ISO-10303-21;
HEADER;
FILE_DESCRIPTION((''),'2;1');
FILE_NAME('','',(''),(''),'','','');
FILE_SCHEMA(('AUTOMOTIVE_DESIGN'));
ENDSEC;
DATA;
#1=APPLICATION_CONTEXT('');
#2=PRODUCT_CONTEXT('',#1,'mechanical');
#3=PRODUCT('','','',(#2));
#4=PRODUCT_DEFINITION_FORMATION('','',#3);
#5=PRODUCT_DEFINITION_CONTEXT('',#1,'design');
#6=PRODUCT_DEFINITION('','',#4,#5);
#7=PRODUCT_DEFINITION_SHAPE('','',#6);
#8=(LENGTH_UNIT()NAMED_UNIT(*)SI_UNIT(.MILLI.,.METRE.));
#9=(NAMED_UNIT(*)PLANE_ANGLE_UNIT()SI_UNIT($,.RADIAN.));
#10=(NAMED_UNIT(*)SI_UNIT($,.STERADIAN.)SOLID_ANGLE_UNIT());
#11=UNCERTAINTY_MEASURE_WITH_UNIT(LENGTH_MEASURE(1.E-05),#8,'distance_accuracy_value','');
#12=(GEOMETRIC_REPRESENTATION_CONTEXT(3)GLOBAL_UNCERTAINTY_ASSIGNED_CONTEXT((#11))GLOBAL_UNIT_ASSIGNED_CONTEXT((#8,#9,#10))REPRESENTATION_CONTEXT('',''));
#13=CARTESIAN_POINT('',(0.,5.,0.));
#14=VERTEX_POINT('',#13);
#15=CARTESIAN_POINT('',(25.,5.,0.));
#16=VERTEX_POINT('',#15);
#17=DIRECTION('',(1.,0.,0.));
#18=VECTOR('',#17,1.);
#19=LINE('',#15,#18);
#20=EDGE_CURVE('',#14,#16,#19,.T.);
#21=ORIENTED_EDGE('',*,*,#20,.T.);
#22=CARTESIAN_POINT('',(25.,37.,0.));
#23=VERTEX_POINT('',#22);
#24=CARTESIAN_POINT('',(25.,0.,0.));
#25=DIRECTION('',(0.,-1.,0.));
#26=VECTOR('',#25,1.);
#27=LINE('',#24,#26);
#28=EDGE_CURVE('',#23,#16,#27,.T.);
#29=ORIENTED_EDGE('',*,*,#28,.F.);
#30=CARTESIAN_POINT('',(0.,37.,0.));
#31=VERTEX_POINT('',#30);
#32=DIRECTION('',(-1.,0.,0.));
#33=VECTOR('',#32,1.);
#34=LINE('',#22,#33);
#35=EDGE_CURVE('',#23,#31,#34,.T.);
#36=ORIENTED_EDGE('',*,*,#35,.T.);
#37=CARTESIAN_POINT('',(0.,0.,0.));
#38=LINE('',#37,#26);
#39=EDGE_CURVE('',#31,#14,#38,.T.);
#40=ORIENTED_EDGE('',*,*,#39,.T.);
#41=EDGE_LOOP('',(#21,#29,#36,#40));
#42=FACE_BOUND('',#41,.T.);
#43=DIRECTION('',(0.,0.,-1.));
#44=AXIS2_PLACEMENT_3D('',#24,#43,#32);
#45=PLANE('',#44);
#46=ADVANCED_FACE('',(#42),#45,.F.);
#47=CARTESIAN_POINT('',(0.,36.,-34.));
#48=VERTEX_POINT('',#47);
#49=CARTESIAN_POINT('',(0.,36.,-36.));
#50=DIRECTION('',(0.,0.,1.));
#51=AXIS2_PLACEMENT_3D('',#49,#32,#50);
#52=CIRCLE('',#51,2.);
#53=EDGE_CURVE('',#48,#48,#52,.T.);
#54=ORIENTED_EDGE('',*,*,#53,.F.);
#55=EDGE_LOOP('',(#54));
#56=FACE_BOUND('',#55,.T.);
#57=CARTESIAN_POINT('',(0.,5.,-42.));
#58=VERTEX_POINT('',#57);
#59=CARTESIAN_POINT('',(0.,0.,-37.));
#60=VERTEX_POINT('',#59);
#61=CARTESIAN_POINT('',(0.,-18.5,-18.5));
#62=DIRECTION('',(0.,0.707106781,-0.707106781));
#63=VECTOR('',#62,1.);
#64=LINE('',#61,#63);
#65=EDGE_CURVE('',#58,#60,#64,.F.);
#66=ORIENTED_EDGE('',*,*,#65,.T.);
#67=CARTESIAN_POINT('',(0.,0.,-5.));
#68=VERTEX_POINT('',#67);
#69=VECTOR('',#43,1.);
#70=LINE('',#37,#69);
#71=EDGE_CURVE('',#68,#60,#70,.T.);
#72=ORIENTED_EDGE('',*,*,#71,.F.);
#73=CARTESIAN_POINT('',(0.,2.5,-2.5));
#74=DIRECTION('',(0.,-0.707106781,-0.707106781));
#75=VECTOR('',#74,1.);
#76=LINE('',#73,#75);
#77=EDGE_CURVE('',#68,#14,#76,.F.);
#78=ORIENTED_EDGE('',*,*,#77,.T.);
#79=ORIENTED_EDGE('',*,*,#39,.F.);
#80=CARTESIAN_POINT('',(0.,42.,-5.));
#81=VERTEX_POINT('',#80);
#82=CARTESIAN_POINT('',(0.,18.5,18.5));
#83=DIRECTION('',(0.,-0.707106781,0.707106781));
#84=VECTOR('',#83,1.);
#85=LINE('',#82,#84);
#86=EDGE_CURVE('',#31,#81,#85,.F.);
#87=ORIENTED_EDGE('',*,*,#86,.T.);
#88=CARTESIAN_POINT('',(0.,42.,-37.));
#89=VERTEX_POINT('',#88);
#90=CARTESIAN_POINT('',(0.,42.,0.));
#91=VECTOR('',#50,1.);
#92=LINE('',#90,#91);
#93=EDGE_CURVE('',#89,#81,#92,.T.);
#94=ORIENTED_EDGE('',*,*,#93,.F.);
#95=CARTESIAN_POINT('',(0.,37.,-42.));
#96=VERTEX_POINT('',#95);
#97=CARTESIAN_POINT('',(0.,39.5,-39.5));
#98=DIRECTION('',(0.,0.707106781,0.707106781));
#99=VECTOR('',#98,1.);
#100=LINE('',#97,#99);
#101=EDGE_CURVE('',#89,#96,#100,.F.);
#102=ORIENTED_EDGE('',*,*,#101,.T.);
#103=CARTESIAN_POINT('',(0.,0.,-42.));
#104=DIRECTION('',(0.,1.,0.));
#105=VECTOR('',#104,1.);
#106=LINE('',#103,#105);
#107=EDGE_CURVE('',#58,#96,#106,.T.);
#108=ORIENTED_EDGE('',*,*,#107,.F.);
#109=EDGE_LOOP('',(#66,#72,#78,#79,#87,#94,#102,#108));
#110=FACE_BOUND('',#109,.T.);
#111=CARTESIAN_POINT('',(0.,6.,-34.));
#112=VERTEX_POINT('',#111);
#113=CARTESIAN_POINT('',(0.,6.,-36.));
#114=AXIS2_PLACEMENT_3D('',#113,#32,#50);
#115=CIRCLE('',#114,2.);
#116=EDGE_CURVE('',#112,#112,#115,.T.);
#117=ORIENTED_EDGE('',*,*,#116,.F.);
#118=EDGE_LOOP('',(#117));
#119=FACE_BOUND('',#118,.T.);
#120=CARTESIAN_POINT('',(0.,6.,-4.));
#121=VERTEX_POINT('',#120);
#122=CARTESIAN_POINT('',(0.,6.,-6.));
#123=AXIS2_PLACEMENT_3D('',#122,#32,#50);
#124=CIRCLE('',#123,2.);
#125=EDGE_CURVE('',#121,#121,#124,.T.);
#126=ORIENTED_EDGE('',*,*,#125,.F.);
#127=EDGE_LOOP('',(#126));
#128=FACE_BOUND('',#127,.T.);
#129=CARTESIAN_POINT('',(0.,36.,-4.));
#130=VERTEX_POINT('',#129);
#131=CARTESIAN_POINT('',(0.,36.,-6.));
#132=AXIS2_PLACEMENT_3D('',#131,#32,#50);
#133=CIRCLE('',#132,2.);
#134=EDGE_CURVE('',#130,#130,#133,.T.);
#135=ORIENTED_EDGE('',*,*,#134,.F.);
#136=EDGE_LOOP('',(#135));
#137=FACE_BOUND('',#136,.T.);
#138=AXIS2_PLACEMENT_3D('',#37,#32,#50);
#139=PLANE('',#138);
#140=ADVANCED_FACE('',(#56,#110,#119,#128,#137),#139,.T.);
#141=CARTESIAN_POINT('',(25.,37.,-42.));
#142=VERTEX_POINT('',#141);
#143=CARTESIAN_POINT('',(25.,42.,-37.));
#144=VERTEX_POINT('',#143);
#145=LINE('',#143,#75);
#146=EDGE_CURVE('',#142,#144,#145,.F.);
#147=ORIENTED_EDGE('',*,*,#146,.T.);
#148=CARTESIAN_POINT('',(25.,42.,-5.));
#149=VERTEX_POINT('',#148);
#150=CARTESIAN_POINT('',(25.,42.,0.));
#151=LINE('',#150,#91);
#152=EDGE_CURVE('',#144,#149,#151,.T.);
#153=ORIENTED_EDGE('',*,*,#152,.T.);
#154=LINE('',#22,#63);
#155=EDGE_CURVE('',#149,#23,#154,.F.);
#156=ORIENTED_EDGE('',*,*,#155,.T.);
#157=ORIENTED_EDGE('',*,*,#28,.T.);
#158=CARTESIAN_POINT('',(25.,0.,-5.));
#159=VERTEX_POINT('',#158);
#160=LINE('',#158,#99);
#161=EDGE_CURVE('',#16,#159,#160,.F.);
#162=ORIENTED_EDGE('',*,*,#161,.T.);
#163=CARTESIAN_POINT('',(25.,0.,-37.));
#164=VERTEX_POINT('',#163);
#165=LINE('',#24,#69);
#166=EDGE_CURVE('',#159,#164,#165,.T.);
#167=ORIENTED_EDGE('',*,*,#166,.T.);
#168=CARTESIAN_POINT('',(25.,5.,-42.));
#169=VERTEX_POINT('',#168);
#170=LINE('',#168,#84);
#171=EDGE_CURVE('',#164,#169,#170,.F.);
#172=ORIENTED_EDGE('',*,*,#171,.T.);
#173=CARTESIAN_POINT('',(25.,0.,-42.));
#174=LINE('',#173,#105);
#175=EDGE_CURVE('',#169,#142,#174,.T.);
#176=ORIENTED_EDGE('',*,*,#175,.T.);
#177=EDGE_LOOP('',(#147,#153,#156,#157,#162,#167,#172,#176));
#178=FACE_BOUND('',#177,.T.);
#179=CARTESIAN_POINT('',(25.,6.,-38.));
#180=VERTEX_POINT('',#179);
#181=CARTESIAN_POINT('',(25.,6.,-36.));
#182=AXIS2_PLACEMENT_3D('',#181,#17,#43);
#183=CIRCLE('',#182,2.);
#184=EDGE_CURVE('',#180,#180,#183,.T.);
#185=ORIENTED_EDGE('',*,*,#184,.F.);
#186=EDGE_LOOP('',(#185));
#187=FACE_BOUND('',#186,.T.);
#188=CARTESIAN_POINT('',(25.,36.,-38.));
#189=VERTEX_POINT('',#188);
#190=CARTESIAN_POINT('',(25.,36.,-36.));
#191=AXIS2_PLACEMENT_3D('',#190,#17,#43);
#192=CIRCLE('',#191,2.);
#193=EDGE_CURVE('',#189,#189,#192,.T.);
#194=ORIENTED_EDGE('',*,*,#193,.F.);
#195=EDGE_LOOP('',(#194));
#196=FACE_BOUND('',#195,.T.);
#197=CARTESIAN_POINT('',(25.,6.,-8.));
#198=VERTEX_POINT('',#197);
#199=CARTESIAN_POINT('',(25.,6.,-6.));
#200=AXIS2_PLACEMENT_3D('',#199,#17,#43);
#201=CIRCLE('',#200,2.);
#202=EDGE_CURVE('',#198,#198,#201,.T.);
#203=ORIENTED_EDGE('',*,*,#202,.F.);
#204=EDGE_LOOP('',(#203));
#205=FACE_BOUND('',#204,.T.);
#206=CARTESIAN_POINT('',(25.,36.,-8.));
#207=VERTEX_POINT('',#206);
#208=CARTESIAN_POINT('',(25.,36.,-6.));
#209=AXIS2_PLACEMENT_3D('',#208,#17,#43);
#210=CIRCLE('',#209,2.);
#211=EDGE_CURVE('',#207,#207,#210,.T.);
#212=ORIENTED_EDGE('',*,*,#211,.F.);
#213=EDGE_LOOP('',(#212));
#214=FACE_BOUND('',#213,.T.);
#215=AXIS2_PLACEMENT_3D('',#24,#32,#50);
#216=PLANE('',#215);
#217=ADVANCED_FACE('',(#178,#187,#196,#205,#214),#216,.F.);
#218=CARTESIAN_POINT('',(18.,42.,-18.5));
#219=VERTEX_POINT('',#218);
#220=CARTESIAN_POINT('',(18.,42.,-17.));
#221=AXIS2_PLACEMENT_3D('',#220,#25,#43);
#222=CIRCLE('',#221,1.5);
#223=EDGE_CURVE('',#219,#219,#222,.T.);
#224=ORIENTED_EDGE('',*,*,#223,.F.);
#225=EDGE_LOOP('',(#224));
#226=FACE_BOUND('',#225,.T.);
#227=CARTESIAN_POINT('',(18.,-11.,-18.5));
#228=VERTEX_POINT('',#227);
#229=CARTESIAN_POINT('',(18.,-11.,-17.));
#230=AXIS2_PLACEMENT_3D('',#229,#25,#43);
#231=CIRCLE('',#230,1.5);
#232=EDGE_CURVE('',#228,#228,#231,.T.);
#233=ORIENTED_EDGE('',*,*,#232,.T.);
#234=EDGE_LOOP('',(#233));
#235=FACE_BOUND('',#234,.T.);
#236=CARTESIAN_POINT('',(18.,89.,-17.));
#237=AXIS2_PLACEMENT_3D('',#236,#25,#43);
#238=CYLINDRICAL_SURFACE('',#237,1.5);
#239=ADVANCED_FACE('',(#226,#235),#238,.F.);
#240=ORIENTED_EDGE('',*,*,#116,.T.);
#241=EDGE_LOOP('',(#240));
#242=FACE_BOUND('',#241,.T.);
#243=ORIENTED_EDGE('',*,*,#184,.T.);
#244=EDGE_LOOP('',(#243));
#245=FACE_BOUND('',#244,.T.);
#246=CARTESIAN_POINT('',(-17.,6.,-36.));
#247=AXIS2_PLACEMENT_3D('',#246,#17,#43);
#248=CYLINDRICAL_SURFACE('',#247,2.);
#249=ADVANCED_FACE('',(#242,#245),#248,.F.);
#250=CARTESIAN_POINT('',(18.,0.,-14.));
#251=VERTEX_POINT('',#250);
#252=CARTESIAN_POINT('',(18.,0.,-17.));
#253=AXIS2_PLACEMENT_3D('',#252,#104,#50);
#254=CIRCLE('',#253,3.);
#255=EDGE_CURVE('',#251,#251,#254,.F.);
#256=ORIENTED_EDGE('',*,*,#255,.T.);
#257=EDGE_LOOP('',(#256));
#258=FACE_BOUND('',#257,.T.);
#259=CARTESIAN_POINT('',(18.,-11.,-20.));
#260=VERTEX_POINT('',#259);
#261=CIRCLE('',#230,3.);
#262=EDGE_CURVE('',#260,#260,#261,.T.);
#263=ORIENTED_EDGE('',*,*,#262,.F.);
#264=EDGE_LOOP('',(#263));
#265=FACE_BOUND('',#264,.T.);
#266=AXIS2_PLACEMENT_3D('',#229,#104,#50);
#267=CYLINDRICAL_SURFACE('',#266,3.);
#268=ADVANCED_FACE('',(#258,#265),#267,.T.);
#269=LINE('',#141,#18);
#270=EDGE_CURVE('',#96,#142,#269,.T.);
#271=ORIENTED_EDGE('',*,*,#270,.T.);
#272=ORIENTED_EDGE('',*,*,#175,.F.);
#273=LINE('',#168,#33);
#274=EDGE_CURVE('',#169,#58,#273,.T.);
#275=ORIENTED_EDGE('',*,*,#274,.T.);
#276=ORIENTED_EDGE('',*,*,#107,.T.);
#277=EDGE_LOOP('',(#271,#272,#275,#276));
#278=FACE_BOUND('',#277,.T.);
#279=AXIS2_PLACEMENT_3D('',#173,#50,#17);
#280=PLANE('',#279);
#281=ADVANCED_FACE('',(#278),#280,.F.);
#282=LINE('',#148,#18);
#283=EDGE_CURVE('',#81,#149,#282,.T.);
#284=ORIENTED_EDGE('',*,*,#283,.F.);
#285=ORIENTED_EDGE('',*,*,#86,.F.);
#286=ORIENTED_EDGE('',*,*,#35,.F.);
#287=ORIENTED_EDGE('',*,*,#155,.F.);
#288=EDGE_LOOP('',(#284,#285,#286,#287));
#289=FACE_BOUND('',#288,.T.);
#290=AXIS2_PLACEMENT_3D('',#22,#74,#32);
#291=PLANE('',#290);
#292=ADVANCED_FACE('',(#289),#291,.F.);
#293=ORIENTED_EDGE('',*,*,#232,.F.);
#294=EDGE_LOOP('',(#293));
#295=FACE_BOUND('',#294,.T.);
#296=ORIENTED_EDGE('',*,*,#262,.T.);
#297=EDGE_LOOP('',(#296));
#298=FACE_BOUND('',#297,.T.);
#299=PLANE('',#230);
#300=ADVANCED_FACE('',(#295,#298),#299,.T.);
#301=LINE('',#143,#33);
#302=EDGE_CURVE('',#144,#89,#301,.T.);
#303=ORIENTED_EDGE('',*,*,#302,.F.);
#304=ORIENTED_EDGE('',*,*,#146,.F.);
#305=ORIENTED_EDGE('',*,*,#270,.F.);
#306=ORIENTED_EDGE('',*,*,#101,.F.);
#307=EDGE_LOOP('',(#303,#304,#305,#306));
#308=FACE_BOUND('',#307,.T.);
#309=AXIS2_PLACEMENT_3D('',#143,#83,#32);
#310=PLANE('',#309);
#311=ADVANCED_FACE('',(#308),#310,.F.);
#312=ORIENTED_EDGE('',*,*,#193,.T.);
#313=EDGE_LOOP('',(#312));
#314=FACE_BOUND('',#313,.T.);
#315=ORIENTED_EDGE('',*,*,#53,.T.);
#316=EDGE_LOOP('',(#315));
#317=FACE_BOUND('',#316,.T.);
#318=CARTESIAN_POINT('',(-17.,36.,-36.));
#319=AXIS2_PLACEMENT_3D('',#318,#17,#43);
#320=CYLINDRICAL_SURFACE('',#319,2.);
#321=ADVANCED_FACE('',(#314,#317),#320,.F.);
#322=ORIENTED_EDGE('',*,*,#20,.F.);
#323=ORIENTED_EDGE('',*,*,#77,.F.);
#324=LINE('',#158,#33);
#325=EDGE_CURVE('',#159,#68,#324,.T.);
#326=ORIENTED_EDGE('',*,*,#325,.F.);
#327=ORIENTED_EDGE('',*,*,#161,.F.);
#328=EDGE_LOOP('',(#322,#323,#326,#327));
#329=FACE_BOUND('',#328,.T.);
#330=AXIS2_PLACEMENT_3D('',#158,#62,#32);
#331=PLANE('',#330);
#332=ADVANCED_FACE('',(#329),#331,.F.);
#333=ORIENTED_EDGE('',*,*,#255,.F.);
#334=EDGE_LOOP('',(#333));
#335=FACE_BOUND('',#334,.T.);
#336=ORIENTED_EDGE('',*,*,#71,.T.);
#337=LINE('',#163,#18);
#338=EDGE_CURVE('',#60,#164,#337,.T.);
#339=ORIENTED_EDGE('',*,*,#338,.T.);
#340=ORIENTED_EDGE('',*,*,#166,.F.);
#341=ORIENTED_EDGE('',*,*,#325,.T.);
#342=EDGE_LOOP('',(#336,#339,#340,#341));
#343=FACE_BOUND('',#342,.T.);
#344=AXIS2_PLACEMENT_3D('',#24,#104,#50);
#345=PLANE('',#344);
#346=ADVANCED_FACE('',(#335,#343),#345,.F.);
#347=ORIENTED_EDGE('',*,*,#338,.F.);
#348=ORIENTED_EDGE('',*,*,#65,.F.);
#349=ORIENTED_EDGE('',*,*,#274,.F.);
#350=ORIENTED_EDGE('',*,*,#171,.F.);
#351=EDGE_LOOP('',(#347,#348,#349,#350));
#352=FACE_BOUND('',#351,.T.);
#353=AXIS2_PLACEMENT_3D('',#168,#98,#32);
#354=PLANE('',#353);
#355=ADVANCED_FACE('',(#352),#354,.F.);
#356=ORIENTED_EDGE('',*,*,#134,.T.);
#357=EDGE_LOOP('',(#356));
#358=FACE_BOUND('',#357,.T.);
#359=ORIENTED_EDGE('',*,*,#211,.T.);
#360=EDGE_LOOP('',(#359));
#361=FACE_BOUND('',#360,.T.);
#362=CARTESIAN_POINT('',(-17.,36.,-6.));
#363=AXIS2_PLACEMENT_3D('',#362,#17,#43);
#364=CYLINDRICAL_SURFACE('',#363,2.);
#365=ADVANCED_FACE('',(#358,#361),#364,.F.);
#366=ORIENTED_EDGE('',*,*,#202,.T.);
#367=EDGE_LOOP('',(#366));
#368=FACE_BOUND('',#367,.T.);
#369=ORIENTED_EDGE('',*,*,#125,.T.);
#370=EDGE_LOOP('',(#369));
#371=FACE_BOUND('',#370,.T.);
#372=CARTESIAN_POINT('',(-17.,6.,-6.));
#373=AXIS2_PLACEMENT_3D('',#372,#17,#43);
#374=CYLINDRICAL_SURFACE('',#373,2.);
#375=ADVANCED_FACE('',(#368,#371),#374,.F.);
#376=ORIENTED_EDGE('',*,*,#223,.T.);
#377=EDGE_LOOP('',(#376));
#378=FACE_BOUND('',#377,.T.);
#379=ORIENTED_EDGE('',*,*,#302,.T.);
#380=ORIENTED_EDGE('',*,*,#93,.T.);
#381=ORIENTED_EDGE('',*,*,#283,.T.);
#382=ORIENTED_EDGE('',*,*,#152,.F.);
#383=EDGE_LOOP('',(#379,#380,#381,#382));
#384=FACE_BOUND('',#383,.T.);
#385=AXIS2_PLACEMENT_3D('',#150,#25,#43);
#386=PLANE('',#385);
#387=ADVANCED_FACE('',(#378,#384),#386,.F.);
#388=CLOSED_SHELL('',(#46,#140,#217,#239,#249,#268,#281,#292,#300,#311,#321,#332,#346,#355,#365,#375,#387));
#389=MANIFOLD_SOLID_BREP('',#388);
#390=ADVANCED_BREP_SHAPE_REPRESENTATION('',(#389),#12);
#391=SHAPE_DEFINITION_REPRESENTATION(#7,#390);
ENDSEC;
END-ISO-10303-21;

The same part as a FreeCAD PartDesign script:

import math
import FreeCAD as App
import Part
import Sketcher

V = App.Vector


def edges_at(feature, points):
    """Names of the edges that pass closest to the given points."""
    edges = feature.Shape.Edges
    near = lambda p: min(range(len(edges)), key=lambda i: edges[i].distToShape(Part.Vertex(*p))[0])
    return sorted({f"Edge{near(p) + 1}" for p in points})

doc = App.newDocument("Part")
body = doc.addObject("PartDesign::Body", "Body")

sketch1 = body.newObject("Sketcher::SketchObject", "Sketch")
sketch1.AttachmentSupport = (doc.getObject("YZ_Plane"), [""])
sketch1.MapMode = "FlatFace"
sketch1.addGeometry([
    Part.LineSegment(V(42, 0, 0), V(0, 0, 0)),
    Part.LineSegment(V(0, 0, 0), V(0, -42, 0)),
    Part.LineSegment(V(0, -42, 0), V(42, -42, 0)),
    Part.LineSegment(V(42, -42, 0), V(42, 0, 0)),
], False)
sketch1.addConstraint([
    Sketcher.Constraint("Coincident", 0, 2, 1, 1),
    Sketcher.Constraint("Coincident", 1, 2, 2, 1),
    Sketcher.Constraint("Coincident", 2, 2, 3, 1),
    Sketcher.Constraint("Coincident", 3, 2, 0, 1),
    Sketcher.Constraint("Horizontal", 0),
    Sketcher.Constraint("Vertical", 1),
    Sketcher.Constraint("Horizontal", 2),
    Sketcher.Constraint("Vertical", 3),
    Sketcher.Constraint("Coincident", 0, 2, -1, 1),
    Sketcher.Constraint("Equal", 2, 1),
    Sketcher.Constraint("DistanceX", 0, 2, 0, 1, 42.0),
])
pad1 = body.newObject("PartDesign::Pad", "Pad")
pad1.Profile = sketch1
pad1.Length = 25

sketch2 = body.newObject("Sketcher::SketchObject", "Sketch001")
sketch2.AttachmentSupport = (doc.getObject("XZ_Plane"), [""])
sketch2.MapMode = "FlatFace"
sketch2.addGeometry(Part.Circle(V(18, -17, 0), V(0, 0, 1), 3), False)
sketch2.addConstraint([
    Sketcher.Constraint("Diameter", 0, 6.0),
    Sketcher.Constraint("DistanceX", -1, 1, 0, 3, 18.0),
    Sketcher.Constraint("DistanceY", 0, 3, -1, 1, 17.0),
])
pad2 = body.newObject("PartDesign::Pad", "Pad001")
pad2.Profile = sketch2
pad2.Length = 11

sketch3 = body.newObject("Sketcher::SketchObject", "Sketch002")
sketch3.AttachmentSupport = (doc.getObject("YZ_Plane"), [""])
sketch3.MapMode = "FlatFace"
sketch3.AttachmentOffset = App.Placement(V(0, 0, 25), App.Rotation())
sketch3.addGeometry([
    Part.ArcOfCircle(Part.Circle(V(36, -6, 0), V(0, 0, 1), 2), math.radians(-90), math.radians(180)),
    Part.ArcOfCircle(Part.Circle(V(36, -6, 0), V(0, 0, 1), 2), math.radians(-180), math.radians(-90)),
    Part.ArcOfCircle(Part.Circle(V(36, -36, 0), V(0, 0, 1), 2), math.radians(90), math.radians(180)),
    Part.ArcOfCircle(Part.Circle(V(36, -36, 0), V(0, 0, 1), 2), math.radians(-180), math.radians(-90)),
    Part.ArcOfCircle(Part.Circle(V(36, -36, 0), V(0, 0, 1), 2), math.radians(-90), math.radians(90)),
    Part.ArcOfCircle(Part.Circle(V(6, -6, 0), V(0, 0, 1), 2), math.radians(-90), math.radians(0)),
    Part.ArcOfCircle(Part.Circle(V(6, -6, 0), V(0, 0, 1), 2), math.radians(0), math.radians(270)),
    Part.ArcOfCircle(Part.Circle(V(6, -36, 0), V(0, 0, 1), 2), math.radians(0), math.radians(90)),
    Part.ArcOfCircle(Part.Circle(V(6, -36, 0), V(0, 0, 1), 2), math.radians(90), math.radians(270)),
    Part.ArcOfCircle(Part.Circle(V(6, -36, 0), V(0, 0, 1), 2), math.radians(-90), math.radians(0)),
], False)
sketch3.addConstraint([
    Sketcher.Constraint("Tangent", 0, 1, 1, 2),
    Sketcher.Constraint("Coincident", 1, 1, 0, 2),
    Sketcher.Constraint("Tangent", 2, 2, 3, 1),
    Sketcher.Constraint("Tangent", 3, 2, 4, 1),
    Sketcher.Constraint("Tangent", 4, 2, 2, 1),
    Sketcher.Constraint("Tangent", 5, 1, 6, 2),
    Sketcher.Constraint("Coincident", 6, 1, 5, 2),
    Sketcher.Constraint("Tangent", 7, 2, 8, 1),
    Sketcher.Constraint("Tangent", 8, 2, 9, 1),
    Sketcher.Constraint("Tangent", 9, 2, 7, 1),
    Sketcher.Constraint("Equal", 1, 2),
    Sketcher.Constraint("Equal", 4, 5),
    Sketcher.Constraint("Equal", 6, 7),
    Sketcher.Constraint("Horizontal", 1, 3, 5, 3),
    Sketcher.Constraint("Horizontal", 4, 3, 7, 3),
    Sketcher.Constraint("Horizontal", 6, 3, 1, 1),
    Sketcher.Constraint("Horizontal", 9, 3, 2, 2),
    Sketcher.Constraint("Horizontal", 1, 1, 6, 1),
    Sketcher.Constraint("Horizontal", 2, 2, 9, 2),
    Sketcher.Constraint("Vertical", 1, 3, 2, 3),
    Sketcher.Constraint("Vertical", 6, 3, 7, 3),
    Sketcher.Constraint("Vertical", 4, 3, 0, 1),
    Sketcher.Constraint("Vertical", 0, 1, 3, 2),
    Sketcher.Constraint("Vertical", 3, 2, 4, 2),
    Sketcher.Constraint("Vertical", 9, 3, 5, 1),
    Sketcher.Constraint("Vertical", 5, 1, 7, 2),
    Sketcher.Constraint("Vertical", 7, 2, 8, 2),
    Sketcher.Constraint("Radius", 0, 2.0),
    Sketcher.Constraint("DistanceX", -1, 1, 0, 3, 36.0),
    Sketcher.Constraint("DistanceY", 0, 3, -1, 1, 6.0),
    Sketcher.Constraint("DistanceY", 2, 3, -1, 1, 36.0),
    Sketcher.Constraint("DistanceX", -1, 1, 5, 3, 6.0),
])
pocket1 = body.newObject("PartDesign::Pocket", "Pocket")
pocket1.Profile = sketch3
pocket1.Length = 42

sketch4 = body.newObject("Sketcher::SketchObject", "Sketch003")
sketch4.AttachmentSupport = (doc.getObject("XZ_Plane"), [""])
sketch4.MapMode = "FlatFace"
sketch4.AttachmentOffset = App.Placement(V(0, 0, 11), App.Rotation())
sketch4.addGeometry(Part.Circle(V(18, -17, 0), V(0, 0, 1), 1.5), False)
sketch4.addConstraint([
    Sketcher.Constraint("Diameter", 0, 3.0),
    Sketcher.Constraint("DistanceX", -1, 1, 0, 3, 18.0),
    Sketcher.Constraint("DistanceY", 0, 3, -1, 1, 17.0),
])
pocket2 = body.newObject("PartDesign::Pocket", "Pocket001")
pocket2.Profile = sketch4
pocket2.Length = 100
doc.recompute()

chamfer = body.newObject("PartDesign::Chamfer", "Chamfer")
chamfer.Base = (pocket2, edges_at(pocket2, [
    (12.5, 42, 0),
    (12.5, 42, -42),
    (12.5, 0, -42),
    (12.5, 0, 0),
]))
chamfer.Size = 5

doc.recompute()
